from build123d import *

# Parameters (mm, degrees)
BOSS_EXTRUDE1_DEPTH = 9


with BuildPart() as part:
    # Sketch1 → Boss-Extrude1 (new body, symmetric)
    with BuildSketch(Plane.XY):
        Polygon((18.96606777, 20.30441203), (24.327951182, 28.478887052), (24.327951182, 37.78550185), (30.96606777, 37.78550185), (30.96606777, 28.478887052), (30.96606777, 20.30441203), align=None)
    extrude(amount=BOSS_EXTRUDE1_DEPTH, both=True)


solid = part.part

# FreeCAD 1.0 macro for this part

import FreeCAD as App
import Part
import Sketcher


def add_polygon(sketch, points):
    """Adds a closed chain of lines whose ends are joined by coincident constraints."""
    first, n = sketch.GeometryCount, len(points)
    for a, b in zip(points, points[1:] + points[:1]):
        sketch.addGeometry(Part.LineSegment(App.Vector(*a, 0), App.Vector(*b, 0)), False)
    for i in range(n):
        sketch.addConstraint(Sketcher.Constraint("Coincident", first + i, 2, first + (i + 1) % n, 1))

doc = App.newDocument("Part")
body = doc.addObject("PartDesign::Body", "Body")

sketch1 = body.newObject("Sketcher::SketchObject", "Sketch")
sketch1.AttachmentSupport = (doc.getObject("XY_Plane"), [""])
sketch1.MapMode = "FlatFace"
add_polygon(sketch1, [(24.327951, 28.478887), (18.966068, 20.304412), (30.966068, 20.304412), (30.966068, 37.785502), (24.327951, 37.785502)])
sketch1.addConstraint([
    Sketcher.Constraint("Horizontal", 1),
    Sketcher.Constraint("Vertical", 2),
    Sketcher.Constraint("Horizontal", 3),
    Sketcher.Constraint("Vertical", 4),
    Sketcher.Constraint("DistanceX", 1, 1, 1, 2, 12.0),
    Sketcher.Constraint("DistanceY", 2, 1, 2, 2, 17.48109),
    Sketcher.Constraint("DistanceY", -1, 1, 2, 2, 37.785502),
    Sketcher.Constraint("DistanceX", 3, 2, 3, 1, 6.638117),
    Sketcher.Constraint("DistanceY", 4, 2, 4, 1, 9.306615),
    Sketcher.Constraint("DistanceX", -1, 1, 3, 2, 24.327951),
])
pad1 = body.newObject("PartDesign::Pad", "Pad")
pad1.Profile = sketch1
pad1.Length = 18
pad1.Midplane = True

doc.recompute()
